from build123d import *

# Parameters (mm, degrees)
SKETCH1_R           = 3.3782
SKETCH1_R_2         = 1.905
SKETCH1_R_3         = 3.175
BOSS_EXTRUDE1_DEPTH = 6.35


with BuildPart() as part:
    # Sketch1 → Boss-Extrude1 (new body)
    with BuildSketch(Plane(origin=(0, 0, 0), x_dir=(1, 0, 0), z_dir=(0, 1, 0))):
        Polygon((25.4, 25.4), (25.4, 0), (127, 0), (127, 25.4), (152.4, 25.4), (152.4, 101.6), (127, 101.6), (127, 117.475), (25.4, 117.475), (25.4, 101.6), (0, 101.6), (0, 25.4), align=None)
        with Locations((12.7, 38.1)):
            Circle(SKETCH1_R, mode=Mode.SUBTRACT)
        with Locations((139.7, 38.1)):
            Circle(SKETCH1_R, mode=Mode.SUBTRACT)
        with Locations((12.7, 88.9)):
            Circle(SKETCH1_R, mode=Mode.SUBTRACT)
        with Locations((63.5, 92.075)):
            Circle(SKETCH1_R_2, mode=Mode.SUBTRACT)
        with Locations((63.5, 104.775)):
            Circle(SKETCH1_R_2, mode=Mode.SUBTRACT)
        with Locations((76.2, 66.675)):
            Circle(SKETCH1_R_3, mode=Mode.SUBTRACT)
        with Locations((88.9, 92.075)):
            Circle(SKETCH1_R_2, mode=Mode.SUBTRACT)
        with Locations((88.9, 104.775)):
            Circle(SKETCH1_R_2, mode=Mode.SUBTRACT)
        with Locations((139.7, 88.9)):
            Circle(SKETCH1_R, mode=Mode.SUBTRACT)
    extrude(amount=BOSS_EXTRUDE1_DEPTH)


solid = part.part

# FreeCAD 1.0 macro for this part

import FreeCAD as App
import Part
import Sketcher
from FreeCAD import Vector
Q = App.Units.Quantity

doc = App.newDocument("Part")
params = doc.addObject("Spreadsheet::Sheet", "Params")
for row, (alias, value) in enumerate([
    ("sketch1_diameter", "0.25 in"),
    ("sketch1_diameter2", "0.15 in"),
    ("sketch1_width", "4 in"),
    ("sketch1_width2", "1 in"),
    ("sketch1_height", "3 in"),
    ("pad1_length", "0.25 in"),
], start=1):
    params.set(f"A{row}", alias)
    params.set(f"B{row}", "=" + value)
    params.setAlias(f"B{row}", alias)

body = doc.addObject("PartDesign::Body", "Body")

sketch1 = body.newObject("Sketcher::SketchObject", "Sketch")
sketch1.AttachmentSupport = (doc.getObject("XZ_Plane"), [""])
sketch1.MapMode = "FlatFace"
sketch1.addGeometry([
    Part.LineSegment(Vector(25.4, -25.4, 0), Vector(25.4, 0, 0)),
    Part.LineSegment(Vector(25.4, 0, 0), Vector(127, 0, 0)),
    Part.LineSegment(Vector(127, 0, 0), Vector(127, -25.4, 0)),
    Part.LineSegment(Vector(127, -25.4, 0), Vector(152.4, -25.4, 0)),
    Part.LineSegment(Vector(152.4, -25.4, 0), Vector(152.4, -101.6, 0)),
    Part.LineSegment(Vector(152.4, -101.6, 0), Vector(127, -101.6, 0)),
    Part.LineSegment(Vector(127, -101.6, 0), Vector(127, -117.5, 0)),
    Part.LineSegment(Vector(127, -117.5, 0), Vector(25.4, -117.5, 0)),
    Part.LineSegment(Vector(25.4, -117.5, 0), Vector(25.4, -101.6, 0)),
    Part.LineSegment(Vector(25.4, -101.6, 0), Vector(0, -101.6, 0)),
    Part.LineSegment(Vector(0, -101.6, 0), Vector(0, -25.4, 0)),
    Part.LineSegment(Vector(0, -25.4, 0), Vector(25.4, -25.4, 0)),
    Part.Circle(Vector(12.7, -38.1, 0), Vector(0, 0, 1), 3.4),
    Part.Circle(Vector(139.7, -38.1, 0), Vector(0, 0, 1), 3.4),
    Part.Circle(Vector(76.2, -66.7, 0), Vector(0, 0, 1), 3.2),
    Part.Circle(Vector(12.7, -88.9, 0), Vector(0, 0, 1), 3.4),
    Part.Circle(Vector(63.5, -92.1, 0), Vector(0, 0, 1), 1.9),
    Part.Circle(Vector(63.5, -104.8, 0), Vector(0, 0, 1), 1.9),
    Part.Circle(Vector(88.9, -92.1, 0), Vector(0, 0, 1), 1.9),
    Part.Circle(Vector(88.9, -104.8, 0), Vector(0, 0, 1), 1.9),
    Part.Circle(Vector(139.7, -88.9, 0), Vector(0, 0, 1), 3.4),
], False)
sketch1.addConstraint([
    Sketcher.Constraint("Coincident", 0, 2, 1, 1),
    Sketcher.Constraint("Coincident", 1, 2, 2, 1),
    Sketcher.Constraint("Coincident", 2, 2, 3, 1),
    Sketcher.Constraint("Coincident", 3, 2, 4, 1),
    Sketcher.Constraint("Coincident", 4, 2, 5, 1),
    Sketcher.Constraint("Coincident", 5, 2, 6, 1),
    Sketcher.Constraint("Coincident", 6, 2, 7, 1),
    Sketcher.Constraint("Coincident", 7, 2, 8, 1),
    Sketcher.Constraint("Coincident", 8, 2, 9, 1),
    Sketcher.Constraint("Coincident", 9, 2, 10, 1),
    Sketcher.Constraint("Coincident", 10, 2, 11, 1),
    Sketcher.Constraint("Coincident", 11, 2, 0, 1),
    Sketcher.Constraint("Vertical", 0),
    Sketcher.Constraint("Horizontal", 1),
    Sketcher.Constraint("Vertical", 2),
    Sketcher.Constraint("Horizontal", 3),
    Sketcher.Constraint("Vertical", 4),
    Sketcher.Constraint("Horizontal", 5),
    Sketcher.Constraint("Vertical", 6),
    Sketcher.Constraint("Horizontal", 7),
    Sketcher.Constraint("Vertical", 8),
    Sketcher.Constraint("Horizontal", 9),
    Sketcher.Constraint("Vertical", 10),
    Sketcher.Constraint("Horizontal", 11),
    Sketcher.Constraint("Equal", 12, 13),
    Sketcher.Constraint("Equal", 13, 15),
    Sketcher.Constraint("Equal", 16, 17),
    Sketcher.Constraint("Equal", 17, 18),
    Sketcher.Constraint("Equal", 18, 19),
    Sketcher.Constraint("Equal", 15, 20),
    Sketcher.Constraint("PointOnObject", 0, 2, -1),
    Sketcher.Constraint("PointOnObject", 9, 2, -2),
    Sketcher.Constraint("Horizontal", 12, 3, 13, 3),
    Sketcher.Constraint("Horizontal", 16, 3, 18, 3),
    Sketcher.Constraint("Horizontal", 17, 3, 19, 3),
    Sketcher.Constraint("Horizontal", 15, 3, 20, 3),
    Sketcher.Constraint("Horizontal", 5, 2, 8, 2),
    Sketcher.Constraint("Horizontal", 3, 2, 10, 2),
    Sketcher.Constraint("Vertical", 12, 3, 15, 3),
    Sketcher.Constraint("Vertical", 16, 3, 17, 3),
    Sketcher.Constraint("Vertical", 18, 3, 19, 3),
    Sketcher.Constraint("Vertical", 13, 3, 20, 3),
    Sketcher.Constraint("Vertical", 2, 2, 5, 2),
    Sketcher.Constraint("Vertical", 0, 2, 7, 2),
    Sketcher.Constraint("Equal", 5, 9),
    Sketcher.Constraint("Equal", 11, 0),
    Sketcher.Constraint("Diameter", 14, Q("0.25 in")),
    Sketcher.Constraint("Diameter", 16, Q("0.15 in")),
    Sketcher.Constraint("DistanceX", 1, 1, 1, 2, Q("4 in")),
    Sketcher.Constraint("DistanceX", 3, 1, 3, 2, Q("1 in")),
    Sketcher.Constraint("DistanceY", 4, 2, 4, 1, Q("3 in")),
    Sketcher.Constraint("Diameter", 12, Q("0.266 in")),
    Sketcher.Constraint("DistanceX", -1, 1, 14, 3, Q("3 in")),
    Sketcher.Constraint("DistanceX", 12, 3, 13, 3, Q("5 in")),
    Sketcher.Constraint("DistanceY", 15, 3, 12, 3, Q("2 in")),
    Sketcher.Constraint("DistanceY", 16, 3, 14, 3, Q("1 in")),
    Sketcher.Constraint("DistanceX", 15, 3, 16, 3, Q("2 in")),
    Sketcher.Constraint("DistanceX", 16, 3, 18, 3, Q("1 in")),
    Sketcher.Constraint("DistanceY", 6, 2, 18, 3, Q("1 in")),
    Sketcher.Constraint("DistanceX", -1, 1, 12, 3, Q("0.5 in")),
    Sketcher.Constraint("DistanceY", 12, 3, -1, 1, Q("1.5 in")),
    Sketcher.Constraint("DistanceY", 17, 3, 16, 3, Q("0.5 in")),
    Sketcher.Constraint("DistanceY", 6, 2, 6, 1, Q("0.625 in")),
])
sketch1.setExpression("Constraints[46]", "Params.sketch1_diameter")
sketch1.setExpression("Constraints[47]", "Params.sketch1_diameter2")
sketch1.setExpression("Constraints[48]", "Params.sketch1_width")
sketch1.setExpression("Constraints[49]", "Params.sketch1_width2")
sketch1.setExpression("Constraints[50]", "Params.sketch1_height")
pad1 = body.newObject("PartDesign::Pad", "Pad")
pad1.Profile = sketch1
pad1.setExpression("Length", "Params.pad1_length")
pad1.Reversed = True

doc.recompute()
